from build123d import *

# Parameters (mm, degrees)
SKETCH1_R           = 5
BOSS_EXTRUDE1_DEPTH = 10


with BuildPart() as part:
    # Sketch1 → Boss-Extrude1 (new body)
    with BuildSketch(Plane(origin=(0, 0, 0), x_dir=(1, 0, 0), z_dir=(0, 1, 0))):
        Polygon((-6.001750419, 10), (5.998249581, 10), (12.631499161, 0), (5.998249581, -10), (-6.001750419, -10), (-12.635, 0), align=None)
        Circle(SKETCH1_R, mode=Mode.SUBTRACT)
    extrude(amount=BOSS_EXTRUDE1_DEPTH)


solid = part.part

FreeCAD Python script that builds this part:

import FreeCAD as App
import Part
import Sketcher


def add_polygon(sketch, points):
    """Adds a closed chain of lines whose ends are joined by coincident constraints."""
    first, n = sketch.GeometryCount, len(points)
    for a, b in zip(points, points[1:] + points[:1]):
        sketch.addGeometry(Part.LineSegment(App.Vector(*a, 0), App.Vector(*b, 0)), False)
    for i in range(n):
        sketch.addConstraint(Sketcher.Constraint("Coincident", first + i, 2, first + (i + 1) % n, 1))

doc = App.newDocument("Part")
params = doc.addObject("Spreadsheet::Sheet", "Params")
for row, (alias, value) in enumerate([
    ("sketch1_diameter", "10 mm"),
    ("sketch1_width", "12 mm"),
    ("sketch1_length", "12 mm"),
    ("pad1_length", "10 mm"),
], start=1):
    params.set(f"A{row}", alias)
    params.set(f"B{row}", "=" + value)
    params.setAlias(f"B{row}", alias)

body = doc.addObject("PartDesign::Body", "Body")

sketch1 = body.newObject("Sketcher::SketchObject", "Sketch")
sketch1.AttachmentSupport = (doc.getObject("XZ_Plane"), [""])
sketch1.MapMode = "FlatFace"
add_polygon(sketch1, [(6, -10), (-6, -10), (-13, 0), (-6, 10), (6, 10), (13, 0)])
sketch1.addGeometry(Part.Circle(App.Vector(0, 0, 0), App.Vector(0, 0, 1), 5), False)
sketch1.addConstraint(Sketcher.Constraint("Horizontal", 0))
sketch1.addConstraint(Sketcher.Constraint("Horizontal", 3))
sketch1.addConstraint(Sketcher.Constraint("Coincident", 6, 3, -1, 1))
sketch1.addConstraint(Sketcher.Constraint("Symmetric", 0, 2, 2, 2, -1))
sketch1.addConstraint(Sketcher.Constraint("PointOnObject", 1, 2, -1))
sketch1.addConstraint(Sketcher.Constraint("PointOnObject", 4, 2, -1))
sketch1.addConstraint(Sketcher.Constraint("Parallel", 1, 4))
sketch1.addConstraint(Sketcher.Constraint("Parallel", 2, 5))
sketch1.addConstraint(Sketcher.Constraint("Diameter", 6, 10.0))
sketch1.addConstraint(Sketcher.Constraint("DistanceX", 0, 2, 0, 1, 12.0))
sketch1.addConstraint(Sketcher.Constraint("Distance", 1, 12.0))
sketch1.addConstraint(Sketcher.Constraint("DistanceY", 0, 2, -1, 1, 10.0))
sketch1.addConstraint(Sketcher.Constraint("DistanceX", 1, 2, -1, 1, 12.635))
sketch1.setExpression("Constraints[14]", "Params.sketch1_diameter")
sketch1.setExpression("Constraints[15]", "Params.sketch1_width")
sketch1.setExpression("Constraints[16]", "Params.sketch1_length")
pad1 = body.newObject("PartDesign::Pad", "Pad")
pad1.Profile = sketch1
pad1.setExpression("Length", "Params.pad1_length")
pad1.Reversed = True

doc.recompute()
